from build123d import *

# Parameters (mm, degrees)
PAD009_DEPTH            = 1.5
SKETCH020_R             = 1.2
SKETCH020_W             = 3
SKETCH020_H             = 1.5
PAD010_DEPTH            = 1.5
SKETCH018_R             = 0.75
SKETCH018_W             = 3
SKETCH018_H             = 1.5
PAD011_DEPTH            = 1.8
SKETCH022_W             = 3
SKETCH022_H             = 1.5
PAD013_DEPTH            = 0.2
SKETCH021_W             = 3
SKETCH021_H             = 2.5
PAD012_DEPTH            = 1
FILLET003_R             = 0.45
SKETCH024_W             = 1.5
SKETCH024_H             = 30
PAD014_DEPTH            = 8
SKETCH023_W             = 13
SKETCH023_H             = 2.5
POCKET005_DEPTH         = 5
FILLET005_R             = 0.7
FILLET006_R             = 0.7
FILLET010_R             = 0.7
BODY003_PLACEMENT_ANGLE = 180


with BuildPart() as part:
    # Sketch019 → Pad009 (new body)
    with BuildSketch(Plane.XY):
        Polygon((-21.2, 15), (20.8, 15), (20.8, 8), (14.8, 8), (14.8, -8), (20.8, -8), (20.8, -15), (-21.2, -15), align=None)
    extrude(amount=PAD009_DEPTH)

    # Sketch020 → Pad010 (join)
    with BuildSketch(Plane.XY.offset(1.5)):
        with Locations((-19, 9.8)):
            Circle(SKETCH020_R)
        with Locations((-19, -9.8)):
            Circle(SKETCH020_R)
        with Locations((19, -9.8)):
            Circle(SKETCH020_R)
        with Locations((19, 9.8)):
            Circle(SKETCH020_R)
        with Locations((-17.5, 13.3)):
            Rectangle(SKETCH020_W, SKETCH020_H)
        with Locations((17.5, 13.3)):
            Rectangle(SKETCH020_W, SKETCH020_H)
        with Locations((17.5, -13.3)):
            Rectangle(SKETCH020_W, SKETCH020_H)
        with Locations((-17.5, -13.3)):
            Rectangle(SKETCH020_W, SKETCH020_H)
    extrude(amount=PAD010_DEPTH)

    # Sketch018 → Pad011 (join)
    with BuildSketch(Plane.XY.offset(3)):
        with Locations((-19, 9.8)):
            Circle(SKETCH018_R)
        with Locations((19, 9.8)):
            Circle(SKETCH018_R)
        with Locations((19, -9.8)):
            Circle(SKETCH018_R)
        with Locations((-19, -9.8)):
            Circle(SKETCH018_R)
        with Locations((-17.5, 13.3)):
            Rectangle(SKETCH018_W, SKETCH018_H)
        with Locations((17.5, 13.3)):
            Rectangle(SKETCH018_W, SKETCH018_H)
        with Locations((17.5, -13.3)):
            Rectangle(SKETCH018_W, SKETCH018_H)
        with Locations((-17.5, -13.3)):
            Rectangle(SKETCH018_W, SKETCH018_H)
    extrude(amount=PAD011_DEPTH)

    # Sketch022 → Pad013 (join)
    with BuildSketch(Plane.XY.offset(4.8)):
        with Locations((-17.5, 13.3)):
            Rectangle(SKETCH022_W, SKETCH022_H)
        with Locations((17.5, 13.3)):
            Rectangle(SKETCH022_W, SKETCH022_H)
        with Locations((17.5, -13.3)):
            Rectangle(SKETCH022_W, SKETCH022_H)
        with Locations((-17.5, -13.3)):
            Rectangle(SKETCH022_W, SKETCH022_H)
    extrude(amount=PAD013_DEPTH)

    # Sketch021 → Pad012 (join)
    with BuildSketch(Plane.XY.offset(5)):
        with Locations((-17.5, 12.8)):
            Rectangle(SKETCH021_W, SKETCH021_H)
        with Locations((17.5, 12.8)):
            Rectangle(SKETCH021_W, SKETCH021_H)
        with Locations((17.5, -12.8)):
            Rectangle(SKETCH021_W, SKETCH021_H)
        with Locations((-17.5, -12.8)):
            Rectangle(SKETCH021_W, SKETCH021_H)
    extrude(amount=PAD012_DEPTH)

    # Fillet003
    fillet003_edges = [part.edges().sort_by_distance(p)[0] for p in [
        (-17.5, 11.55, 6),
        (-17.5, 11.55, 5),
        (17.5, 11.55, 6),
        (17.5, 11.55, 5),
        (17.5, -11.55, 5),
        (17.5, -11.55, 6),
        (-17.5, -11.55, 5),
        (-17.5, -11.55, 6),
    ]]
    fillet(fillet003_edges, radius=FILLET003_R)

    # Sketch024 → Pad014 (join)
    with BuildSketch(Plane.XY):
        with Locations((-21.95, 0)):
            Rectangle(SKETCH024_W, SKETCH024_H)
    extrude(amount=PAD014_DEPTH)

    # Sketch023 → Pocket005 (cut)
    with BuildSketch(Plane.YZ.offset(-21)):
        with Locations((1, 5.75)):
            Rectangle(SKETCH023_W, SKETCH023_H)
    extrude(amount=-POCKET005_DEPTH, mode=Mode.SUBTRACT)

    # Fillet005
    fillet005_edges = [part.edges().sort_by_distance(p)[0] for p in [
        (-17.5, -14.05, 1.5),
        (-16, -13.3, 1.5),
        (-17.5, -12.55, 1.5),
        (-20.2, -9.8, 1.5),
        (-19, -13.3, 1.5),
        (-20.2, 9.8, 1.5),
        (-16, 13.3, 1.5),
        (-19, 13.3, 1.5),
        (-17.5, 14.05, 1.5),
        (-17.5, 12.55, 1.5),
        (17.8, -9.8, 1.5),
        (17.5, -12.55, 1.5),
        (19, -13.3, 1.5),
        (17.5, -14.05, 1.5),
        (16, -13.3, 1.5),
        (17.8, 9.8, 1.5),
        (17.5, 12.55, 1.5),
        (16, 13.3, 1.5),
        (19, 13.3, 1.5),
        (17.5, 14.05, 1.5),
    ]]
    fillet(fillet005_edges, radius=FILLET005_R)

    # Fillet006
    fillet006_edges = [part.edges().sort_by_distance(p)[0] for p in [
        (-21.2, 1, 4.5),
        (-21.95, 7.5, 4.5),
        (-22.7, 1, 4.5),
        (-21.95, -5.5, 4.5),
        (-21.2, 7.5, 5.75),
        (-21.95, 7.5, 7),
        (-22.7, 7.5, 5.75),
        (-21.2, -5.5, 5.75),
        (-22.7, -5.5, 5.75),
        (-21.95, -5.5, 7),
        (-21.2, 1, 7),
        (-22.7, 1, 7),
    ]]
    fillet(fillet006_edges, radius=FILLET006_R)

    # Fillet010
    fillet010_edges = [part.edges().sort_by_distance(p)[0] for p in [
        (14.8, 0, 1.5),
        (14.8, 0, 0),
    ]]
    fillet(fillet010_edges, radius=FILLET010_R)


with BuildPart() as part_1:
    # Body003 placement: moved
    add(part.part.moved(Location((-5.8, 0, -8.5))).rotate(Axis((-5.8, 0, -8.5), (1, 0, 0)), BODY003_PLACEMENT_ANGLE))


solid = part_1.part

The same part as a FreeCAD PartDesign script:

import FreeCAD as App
import Part
import Sketcher
Q = App.Units.Quantity


def edges_at(feature, points):
    """Names of the edges that pass closest to the given points."""
    edges = feature.Shape.Edges
    near = lambda p: min(range(len(edges)), key=lambda i: edges[i].distToShape(Part.Vertex(*p))[0])
    return sorted({f"Edge{near(p) + 1}" for p in points})


def add_polygon(sketch, points):
    """Adds a closed chain of lines whose ends are joined by coincident constraints."""
    first, n = sketch.GeometryCount, len(points)
    for a, b in zip(points, points[1:] + points[:1]):
        sketch.addGeometry(Part.LineSegment(App.Vector(*a, 0), App.Vector(*b, 0)), False)
    for i in range(n):
        sketch.addConstraint(Sketcher.Constraint("Coincident", first + i, 2, first + (i + 1) % n, 1))

doc = App.newDocument("Part")
body = doc.addObject("PartDesign::Body", "Body")

# Sketch on XY plane
sketch1 = body.newObject("Sketcher::SketchObject", "Sketch")
sketch1.AttachmentSupport = (doc.getObject("XY_Plane"), [""])
sketch1.MapMode = "FlatFace"
add_polygon(sketch1, [(20.8, 15), (-21.2, 15), (-21.2, -15), (20.8, -15), (20.8, -8), (14.8, -8), (14.8, 8), (20.8, 8)])  # lines 0-7
sketch1.addConstraint([
    Sketcher.Constraint("Horizontal", 0),
    Sketcher.Constraint("Vertical", 1),
    Sketcher.Constraint("Horizontal", 2),
    Sketcher.Constraint("Vertical", 3),
    Sketcher.Constraint("Horizontal", 4),
    Sketcher.Constraint("Vertical", 5),
    Sketcher.Constraint("Horizontal", 6),
    Sketcher.Constraint("Vertical", 7),
    Sketcher.Constraint("Symmetric", 3, 2, 6, 2, -1),
    Sketcher.Constraint("Equal", 3, 7),
    Sketcher.Constraint("DistanceX", 0, 2, 0, 1, Q("42 mm")),
    Sketcher.Constraint("DistanceX", 4, 2, 4, 1, Q("6 mm")),
    Sketcher.Constraint("DistanceY", 1, 2, 1, 1, Q("30 mm")),
    Sketcher.Constraint("DistanceY", 3, 1, 3, 2, Q("7 mm")),
    Sketcher.Constraint("DistanceX", 0, 2, -1, 1, Q("21.2 mm")),
])
pad1 = body.newObject("PartDesign::Pad", "Pad")
pad1.Profile = sketch1
pad1.Length = 1.5

# Sketch on XY plane
sketch2 = body.newObject("Sketcher::SketchObject", "Sketch001")
sketch2.AttachmentSupport = (doc.getObject("XY_Plane"), [""])
sketch2.MapMode = "FlatFace"
sketch2.AttachmentOffset = App.Placement(App.Vector(0, 0, 1.5), App.Rotation())
sketch2.addGeometry(Part.Circle(App.Vector(-19, 9.8, 0), App.Vector(0, 0, 1), 1.2), False)  # 0
sketch2.addGeometry(Part.Circle(App.Vector(-19, -9.8, 0), App.Vector(0, 0, 1), 1.2), False)  # 1
sketch2.addGeometry(Part.Circle(App.Vector(19, -9.8, 0), App.Vector(0, 0, 1), 1.2), False)  # 2
sketch2.addGeometry(Part.Circle(App.Vector(19, 9.8, 0), App.Vector(0, 0, 1), 1.2), False)  # 3
add_polygon(sketch2, [(-19, 14.05), (-19, 12.55), (-16, 12.55), (-16, 14.05)])  # lines 4-7
add_polygon(sketch2, [(16, 14.05), (16, 12.55), (19, 12.55), (19, 14.05)])  # lines 8-11
add_polygon(sketch2, [(16, -12.55), (16, -14.05), (19, -14.05), (19, -12.55)])  # lines 12-15
add_polygon(sketch2, [(-19, -12.55), (-19, -14.05), (-16, -14.05), (-16, -12.55)])  # lines 16-19
sketch2.addConstraint([
    Sketcher.Constraint("Vertical", 4),
    Sketcher.Constraint("Horizontal", 5),
    Sketcher.Constraint("Vertical", 6),
    Sketcher.Constraint("Horizontal", 7),
    Sketcher.Constraint("Vertical", 8),
    Sketcher.Constraint("Horizontal", 9),
    Sketcher.Constraint("Vertical", 10),
    Sketcher.Constraint("Horizontal", 11),
    Sketcher.Constraint("Vertical", 12),
    Sketcher.Constraint("Horizontal", 13),
    Sketcher.Constraint("Vertical", 14),
    Sketcher.Constraint("Horizontal", 15),
    Sketcher.Constraint("Vertical", 16),
    Sketcher.Constraint("Horizontal", 17),
    Sketcher.Constraint("Vertical", 18),
    Sketcher.Constraint("Horizontal", 19),
    Sketcher.Constraint("Equal", 0, 1),
    Sketcher.Constraint("Equal", 1, 2),
    Sketcher.Constraint("Equal", 2, 3),
    Sketcher.Constraint("Symmetric", 0, 3, 2, 3, -1, 1),
    Sketcher.Constraint("Symmetric", 1, 3, 3, 3, -1, 1),
    Sketcher.Constraint("Symmetric", 6, 2, 12, 2, -1, 1),
    Sketcher.Constraint("Symmetric", 4, 2, 14, 2, -1, 1),
    Sketcher.Constraint("Symmetric", 10, 2, 16, 2, -1, 1),
    Sketcher.Constraint("Symmetric", 8, 2, 18, 2, -1, 1),
    Sketcher.Constraint("Symmetric", 1, 3, 2, 3, -2),
    Sketcher.Constraint("Symmetric", 5, 2, 8, 2, -2),
    Sketcher.Constraint("Symmetric", 7, 2, 10, 2, -2),
    Sketcher.Constraint("Vertical", 1, 3, 4, 2),
    Sketcher.Constraint("Diameter", 0, Q("2.4 mm")),
    Sketcher.Constraint("DistanceX", 5, 1, 5, 2, Q("3 mm")),
    Sketcher.Constraint("DistanceY", 4, 2, 4, 1, Q("1.5 mm")),
    Sketcher.Constraint("DistanceX", 0, 3, -1, 1, Q("19 mm")),
    Sketcher.Constraint("DistanceY", -1, 1, 0, 3, Q("9.8 mm")),
    Sketcher.Constraint("DistanceY", 12, 2, 8, 2, Q("26.6 mm")),
])
pad2 = body.newObject("PartDesign::Pad", "Pad001")
pad2.Profile = sketch2
pad2.Length = 1.5

# Sketch on XY plane
sketch3 = body.newObject("Sketcher::SketchObject", "Sketch002")
sketch3.AttachmentSupport = (doc.getObject("XY_Plane"), [""])
sketch3.MapMode = "FlatFace"
sketch3.AttachmentOffset = App.Placement(App.Vector(0, 0, 3), App.Rotation())
sketch3.addGeometry(Part.Circle(App.Vector(-19, 9.8, 0), App.Vector(0, 0, 1), 0.75), False)  # 0
sketch3.addGeometry(Part.Circle(App.Vector(19, 9.8, 0), App.Vector(0, 0, 1), 0.75), False)  # 1
sketch3.addGeometry(Part.Circle(App.Vector(19, -9.8, 0), App.Vector(0, 0, 1), 0.75), False)  # 2
sketch3.addGeometry(Part.Circle(App.Vector(-19, -9.8, 0), App.Vector(0, 0, 1), 0.75), False)  # 3
add_polygon(sketch3, [(-19, 14.05), (-19, 12.55), (-16, 12.55), (-16, 14.05)])  # lines 4-7
add_polygon(sketch3, [(16, 14.05), (16, 12.55), (19, 12.55), (19, 14.05)])  # lines 8-11
add_polygon(sketch3, [(16, -12.55), (16, -14.05), (19, -14.05), (19, -12.55)])  # lines 12-15
add_polygon(sketch3, [(-19, -12.55), (-19, -14.05), (-16, -14.05), (-16, -12.55)])  # lines 16-19
sketch3.addConstraint([
    Sketcher.Constraint("Vertical", 4),
    Sketcher.Constraint("Horizontal", 5),
    Sketcher.Constraint("Vertical", 6),
    Sketcher.Constraint("Horizontal", 7),
    Sketcher.Constraint("Vertical", 8),
    Sketcher.Constraint("Horizontal", 9),
    Sketcher.Constraint("Vertical", 10),
    Sketcher.Constraint("Horizontal", 11),
    Sketcher.Constraint("Vertical", 12),
    Sketcher.Constraint("Horizontal", 13),
    Sketcher.Constraint("Vertical", 14),
    Sketcher.Constraint("Horizontal", 15),
    Sketcher.Constraint("Vertical", 16),
    Sketcher.Constraint("Horizontal", 17),
    Sketcher.Constraint("Vertical", 18),
    Sketcher.Constraint("Horizontal", 19),
    Sketcher.Constraint("Equal", 0, 1),
    Sketcher.Constraint("Equal", 1, 2),
    Sketcher.Constraint("Equal", 2, 3),
    Sketcher.Constraint("Symmetric", 0, 3, 2, 3, -1, 1),
    Sketcher.Constraint("Symmetric", 1, 3, 3, 3, -1, 1),
    Sketcher.Constraint("Symmetric", 6, 2, 12, 2, -1, 1),
    Sketcher.Constraint("Symmetric", 4, 2, 14, 2, -1, 1),
    Sketcher.Constraint("Symmetric", 10, 2, 16, 2, -1, 1),
    Sketcher.Constraint("Symmetric", 8, 2, 18, 2, -1, 1),
    Sketcher.Constraint("Symmetric", 0, 3, 1, 3, -2),
    Sketcher.Constraint("Symmetric", 5, 2, 8, 2, -2),
    Sketcher.Constraint("Symmetric", 7, 2, 10, 2, -2),
    Sketcher.Constraint("Vertical", 3, 3, 4, 2),
    Sketcher.Constraint("Diameter", 0, Q("1.5 mm")),
    Sketcher.Constraint("DistanceX", 5, 1, 5, 2, Q("3 mm")),
    Sketcher.Constraint("DistanceY", 4, 2, 4, 1, Q("1.5 mm")),
    Sketcher.Constraint("DistanceX", 0, 3, -1, 1, Q("19 mm")),
    Sketcher.Constraint("DistanceY", -1, 1, 0, 3, Q("9.8 mm")),
    Sketcher.Constraint("DistanceY", 12, 2, 8, 2, Q("26.6 mm")),
])
pad3 = body.newObject("PartDesign::Pad", "Pad002")
pad3.Profile = sketch3
pad3.Length = 1.8

# Sketch on XY plane
sketch4 = body.newObject("Sketcher::SketchObject", "Sketch003")
sketch4.AttachmentSupport = (doc.getObject("XY_Plane"), [""])
sketch4.MapMode = "FlatFace"
sketch4.AttachmentOffset = App.Placement(App.Vector(0, 0, 4.8), App.Rotation())
add_polygon(sketch4, [(-19, 14.05), (-19, 12.55), (-16, 12.55), (-16, 14.05)])  # lines 0-3
add_polygon(sketch4, [(16, 14.05), (16, 12.55), (19, 12.55), (19, 14.05)])  # lines 4-7
add_polygon(sketch4, [(16, -12.55), (16, -14.05), (19, -14.05), (19, -12.55)])  # lines 8-11
add_polygon(sketch4, [(-19, -12.55), (-19, -14.05), (-16, -14.05), (-16, -12.55)])  # lines 12-15
sketch4.addConstraint([
    Sketcher.Constraint("Vertical", 0),
    Sketcher.Constraint("Horizontal", 1),
    Sketcher.Constraint("Vertical", 2),
    Sketcher.Constraint("Horizontal", 3),
    Sketcher.Constraint("Vertical", 4),
    Sketcher.Constraint("Horizontal", 5),
    Sketcher.Constraint("Vertical", 6),
    Sketcher.Constraint("Horizontal", 7),
    Sketcher.Constraint("Vertical", 8),
    Sketcher.Constraint("Horizontal", 9),
    Sketcher.Constraint("Vertical", 10),
    Sketcher.Constraint("Horizontal", 11),
    Sketcher.Constraint("Vertical", 12),
    Sketcher.Constraint("Horizontal", 13),
    Sketcher.Constraint("Vertical", 14),
    Sketcher.Constraint("Horizontal", 15),
    Sketcher.Constraint("Symmetric", 2, 2, 8, 2, -1, 1),
    Sketcher.Constraint("Symmetric", 0, 2, 10, 2, -1, 1),
    Sketcher.Constraint("Symmetric", 6, 2, 12, 2, -1, 1),
    Sketcher.Constraint("Symmetric", 4, 2, 14, 2, -1, 1),
    Sketcher.Constraint("Symmetric", 1, 2, 4, 2, -2),
    Sketcher.Constraint("Symmetric", 3, 2, 6, 2, -2),
    Sketcher.Constraint("DistanceX", 1, 1, 1, 2, Q("3 mm")),
    Sketcher.Constraint("DistanceY", 0, 2, 0, 1, Q("1.5 mm")),
    Sketcher.Constraint("DistanceX", 0, 2, -1, 1, Q("19 mm")),
    Sketcher.Constraint("DistanceY", 8, 2, 4, 2, Q("26.6 mm")),
])
pad4 = body.newObject("PartDesign::Pad", "Pad003")
pad4.Profile = sketch4
pad4.Length = 0.2

# Sketch on XY plane
sketch5 = body.newObject("Sketcher::SketchObject", "Sketch004")
sketch5.AttachmentSupport = (doc.getObject("XY_Plane"), [""])
sketch5.MapMode = "FlatFace"
sketch5.AttachmentOffset = App.Placement(App.Vector(0, 0, 5), App.Rotation())
add_polygon(sketch5, [(-19, 14.05), (-19, 11.55), (-16, 11.55), (-16, 14.05)])  # lines 0-3
add_polygon(sketch5, [(16, 14.05), (16, 11.55), (19, 11.55), (19, 14.05)])  # lines 4-7
add_polygon(sketch5, [(16, -11.55), (16, -14.05), (19, -14.05), (19, -11.55)])  # lines 8-11
add_polygon(sketch5, [(-19, -11.55), (-19, -14.05), (-16, -14.05), (-16, -11.55)])  # lines 12-15
sketch5.addConstraint([
    Sketcher.Constraint("Vertical", 0),
    Sketcher.Constraint("Horizontal", 1),
    Sketcher.Constraint("Vertical", 2),
    Sketcher.Constraint("Horizontal", 3),
    Sketcher.Constraint("Vertical", 4),
    Sketcher.Constraint("Horizontal", 5),
    Sketcher.Constraint("Vertical", 6),
    Sketcher.Constraint("Horizontal", 7),
    Sketcher.Constraint("Vertical", 8),
    Sketcher.Constraint("Horizontal", 9),
    Sketcher.Constraint("Vertical", 10),
    Sketcher.Constraint("Horizontal", 11),
    Sketcher.Constraint("Vertical", 12),
    Sketcher.Constraint("Horizontal", 13),
    Sketcher.Constraint("Vertical", 14),
    Sketcher.Constraint("Horizontal", 15),
    Sketcher.Constraint("Symmetric", 2, 2, 8, 2, -1, 1),
    Sketcher.Constraint("Symmetric", 0, 2, 10, 2, -1, 1),
    Sketcher.Constraint("Symmetric", 6, 2, 12, 2, -1, 1),
    Sketcher.Constraint("Symmetric", 4, 2, 14, 2, -1, 1),
    Sketcher.Constraint("Symmetric", 1, 2, 4, 2, -2),
    Sketcher.Constraint("Symmetric", 3, 2, 6, 2, -2),
    Sketcher.Constraint("DistanceX", 1, 1, 1, 2, Q("3 mm")),
    Sketcher.Constraint("DistanceY", 0, 2, 0, 1, Q("2.5 mm")),
    Sketcher.Constraint("DistanceX", 0, 2, -1, 1, Q("19 mm")),
    Sketcher.Constraint("DistanceY", 8, 2, 4, 2, Q("25.6 mm")),
])
pad5 = body.newObject("PartDesign::Pad", "Pad004")
pad5.Profile = sketch5
pad5.Length = 1
doc.recompute()

fillet = body.newObject("PartDesign::Fillet", "Fillet")
fillet.Base = (pad5, edges_at(pad5, [
    (-17.5, 11.55, 6),
    (-17.5, 11.55, 5),
    (17.5, 11.55, 6),
    (17.5, 11.55, 5),
    (17.5, -11.55, 5),
    (17.5, -11.55, 6),
    (-17.5, -11.55, 5),
    (-17.5, -11.55, 6),
]))
fillet.Radius = 0.45

# Sketch on XY plane
sketch6 = body.newObject("Sketcher::SketchObject", "Sketch005")
sketch6.AttachmentSupport = (doc.getObject("XY_Plane"), [""])
sketch6.MapMode = "FlatFace"
add_polygon(sketch6, [(-22.7, 15), (-22.7, -15), (-21.2, -15), (-21.2, 15)])  # lines 0-3
sketch6.addConstraint([
    Sketcher.Constraint("Vertical", 0),
    Sketcher.Constraint("Horizontal", 1),
    Sketcher.Constraint("Vertical", 2),
    Sketcher.Constraint("Horizontal", 3),
    Sketcher.Constraint("DistanceY", 0, 2, 0, 1, Q("30 mm")),
    Sketcher.Constraint("DistanceX", 1, 1, 1, 2, Q("1.5 mm")),
    Sketcher.Constraint("DistanceY", 0, 2, -1, 1, Q("15 mm")),
    Sketcher.Constraint("DistanceX", 0, 2, -1, 1, Q("22.7 mm")),
])
pad6 = body.newObject("PartDesign::Pad", "Pad005")
pad6.Profile = sketch6
pad6.Length = 8

# Sketch on YZ plane
sketch7 = body.newObject("Sketcher::SketchObject", "Sketch006")
sketch7.AttachmentSupport = (doc.getObject("YZ_Plane"), [""])
sketch7.MapMode = "FlatFace"
sketch7.AttachmentOffset = App.Placement(App.Vector(0, 0, -21), App.Rotation())
add_polygon(sketch7, [(-5.5, 7), (-5.5, 4.5), (7.5, 4.5), (7.5, 7)])  # lines 0-3
sketch7.addConstraint([
    Sketcher.Constraint("Vertical", 0),
    Sketcher.Constraint("Horizontal", 1),
    Sketcher.Constraint("Vertical", 2),
    Sketcher.Constraint("Horizontal", 3),
    Sketcher.Constraint("DistanceX", 1, 1, 1, 2, Q("13 mm")),
    Sketcher.Constraint("DistanceY", 0, 2, 0, 1, Q("2.5 mm")),
    Sketcher.Constraint("DistanceY", -1, 1, 2, 2, Q("7 mm")),
    Sketcher.Constraint("DistanceX", 0, 2, -1, 1, Q("5.5 mm")),
])
pocket1 = body.newObject("PartDesign::Pocket", "Pocket")
pocket1.Profile = sketch7
pocket1.Length = 5
doc.recompute()

fillet2 = body.newObject("PartDesign::Fillet", "Fillet001")
fillet2.Base = (pocket1, edges_at(pocket1, [
    (-17.5, -14.05, 1.5),
    (-16, -13.3, 1.5),
    (-17.5, -12.55, 1.5),
    (-20.2, -9.8, 1.5),
    (-19, -13.3, 1.5),
    (-20.2, 9.8, 1.5),
    (-16, 13.3, 1.5),
    (-19, 13.3, 1.5),
    (-17.5, 14.05, 1.5),
    (-17.5, 12.55, 1.5),
    (17.8, -9.8, 1.5),
    (17.5, -12.55, 1.5),
    (19, -13.3, 1.5),
    (17.5, -14.05, 1.5),
    (16, -13.3, 1.5),
    (17.8, 9.8, 1.5),
    (17.5, 12.55, 1.5),
    (16, 13.3, 1.5),
    (19, 13.3, 1.5),
    (17.5, 14.05, 1.5),
]))
fillet2.Radius = 0.7
doc.recompute()

fillet3 = body.newObject("PartDesign::Fillet", "Fillet002")
fillet3.Base = (fillet2, edges_at(fillet2, [
    (-21.2, 1, 4.5),
    (-21.95, 7.5, 4.5),
    (-22.7, 1, 4.5),
    (-21.95, -5.5, 4.5),
    (-21.2, 7.5, 5.75),
    (-21.95, 7.5, 7),
    (-22.7, 7.5, 5.75),
    (-21.2, -5.5, 5.75),
    (-22.7, -5.5, 5.75),
    (-21.95, -5.5, 7),
    (-21.2, 1, 7),
    (-22.7, 1, 7),
]))
fillet3.Radius = 0.7
doc.recompute()

fillet4 = body.newObject("PartDesign::Fillet", "Fillet003")
fillet4.Base = (fillet3, edges_at(fillet3, [(14.8, 0, 1.5), (14.8, 0, 0)]))
fillet4.Radius = 0.7
body2 = doc.addObject("PartDesign::Body", "Body001")
doc.recompute()

body.Placement = App.Placement(App.Vector(-5.8, 0, -8.5), App.Rotation(App.Vector(1, 0, 0), 180))
boolean = body2.newObject("PartDesign::Boolean", "Boolean")
boolean.Type = "Fuse"
boolean.addObjects([body])

doc.recompute()
